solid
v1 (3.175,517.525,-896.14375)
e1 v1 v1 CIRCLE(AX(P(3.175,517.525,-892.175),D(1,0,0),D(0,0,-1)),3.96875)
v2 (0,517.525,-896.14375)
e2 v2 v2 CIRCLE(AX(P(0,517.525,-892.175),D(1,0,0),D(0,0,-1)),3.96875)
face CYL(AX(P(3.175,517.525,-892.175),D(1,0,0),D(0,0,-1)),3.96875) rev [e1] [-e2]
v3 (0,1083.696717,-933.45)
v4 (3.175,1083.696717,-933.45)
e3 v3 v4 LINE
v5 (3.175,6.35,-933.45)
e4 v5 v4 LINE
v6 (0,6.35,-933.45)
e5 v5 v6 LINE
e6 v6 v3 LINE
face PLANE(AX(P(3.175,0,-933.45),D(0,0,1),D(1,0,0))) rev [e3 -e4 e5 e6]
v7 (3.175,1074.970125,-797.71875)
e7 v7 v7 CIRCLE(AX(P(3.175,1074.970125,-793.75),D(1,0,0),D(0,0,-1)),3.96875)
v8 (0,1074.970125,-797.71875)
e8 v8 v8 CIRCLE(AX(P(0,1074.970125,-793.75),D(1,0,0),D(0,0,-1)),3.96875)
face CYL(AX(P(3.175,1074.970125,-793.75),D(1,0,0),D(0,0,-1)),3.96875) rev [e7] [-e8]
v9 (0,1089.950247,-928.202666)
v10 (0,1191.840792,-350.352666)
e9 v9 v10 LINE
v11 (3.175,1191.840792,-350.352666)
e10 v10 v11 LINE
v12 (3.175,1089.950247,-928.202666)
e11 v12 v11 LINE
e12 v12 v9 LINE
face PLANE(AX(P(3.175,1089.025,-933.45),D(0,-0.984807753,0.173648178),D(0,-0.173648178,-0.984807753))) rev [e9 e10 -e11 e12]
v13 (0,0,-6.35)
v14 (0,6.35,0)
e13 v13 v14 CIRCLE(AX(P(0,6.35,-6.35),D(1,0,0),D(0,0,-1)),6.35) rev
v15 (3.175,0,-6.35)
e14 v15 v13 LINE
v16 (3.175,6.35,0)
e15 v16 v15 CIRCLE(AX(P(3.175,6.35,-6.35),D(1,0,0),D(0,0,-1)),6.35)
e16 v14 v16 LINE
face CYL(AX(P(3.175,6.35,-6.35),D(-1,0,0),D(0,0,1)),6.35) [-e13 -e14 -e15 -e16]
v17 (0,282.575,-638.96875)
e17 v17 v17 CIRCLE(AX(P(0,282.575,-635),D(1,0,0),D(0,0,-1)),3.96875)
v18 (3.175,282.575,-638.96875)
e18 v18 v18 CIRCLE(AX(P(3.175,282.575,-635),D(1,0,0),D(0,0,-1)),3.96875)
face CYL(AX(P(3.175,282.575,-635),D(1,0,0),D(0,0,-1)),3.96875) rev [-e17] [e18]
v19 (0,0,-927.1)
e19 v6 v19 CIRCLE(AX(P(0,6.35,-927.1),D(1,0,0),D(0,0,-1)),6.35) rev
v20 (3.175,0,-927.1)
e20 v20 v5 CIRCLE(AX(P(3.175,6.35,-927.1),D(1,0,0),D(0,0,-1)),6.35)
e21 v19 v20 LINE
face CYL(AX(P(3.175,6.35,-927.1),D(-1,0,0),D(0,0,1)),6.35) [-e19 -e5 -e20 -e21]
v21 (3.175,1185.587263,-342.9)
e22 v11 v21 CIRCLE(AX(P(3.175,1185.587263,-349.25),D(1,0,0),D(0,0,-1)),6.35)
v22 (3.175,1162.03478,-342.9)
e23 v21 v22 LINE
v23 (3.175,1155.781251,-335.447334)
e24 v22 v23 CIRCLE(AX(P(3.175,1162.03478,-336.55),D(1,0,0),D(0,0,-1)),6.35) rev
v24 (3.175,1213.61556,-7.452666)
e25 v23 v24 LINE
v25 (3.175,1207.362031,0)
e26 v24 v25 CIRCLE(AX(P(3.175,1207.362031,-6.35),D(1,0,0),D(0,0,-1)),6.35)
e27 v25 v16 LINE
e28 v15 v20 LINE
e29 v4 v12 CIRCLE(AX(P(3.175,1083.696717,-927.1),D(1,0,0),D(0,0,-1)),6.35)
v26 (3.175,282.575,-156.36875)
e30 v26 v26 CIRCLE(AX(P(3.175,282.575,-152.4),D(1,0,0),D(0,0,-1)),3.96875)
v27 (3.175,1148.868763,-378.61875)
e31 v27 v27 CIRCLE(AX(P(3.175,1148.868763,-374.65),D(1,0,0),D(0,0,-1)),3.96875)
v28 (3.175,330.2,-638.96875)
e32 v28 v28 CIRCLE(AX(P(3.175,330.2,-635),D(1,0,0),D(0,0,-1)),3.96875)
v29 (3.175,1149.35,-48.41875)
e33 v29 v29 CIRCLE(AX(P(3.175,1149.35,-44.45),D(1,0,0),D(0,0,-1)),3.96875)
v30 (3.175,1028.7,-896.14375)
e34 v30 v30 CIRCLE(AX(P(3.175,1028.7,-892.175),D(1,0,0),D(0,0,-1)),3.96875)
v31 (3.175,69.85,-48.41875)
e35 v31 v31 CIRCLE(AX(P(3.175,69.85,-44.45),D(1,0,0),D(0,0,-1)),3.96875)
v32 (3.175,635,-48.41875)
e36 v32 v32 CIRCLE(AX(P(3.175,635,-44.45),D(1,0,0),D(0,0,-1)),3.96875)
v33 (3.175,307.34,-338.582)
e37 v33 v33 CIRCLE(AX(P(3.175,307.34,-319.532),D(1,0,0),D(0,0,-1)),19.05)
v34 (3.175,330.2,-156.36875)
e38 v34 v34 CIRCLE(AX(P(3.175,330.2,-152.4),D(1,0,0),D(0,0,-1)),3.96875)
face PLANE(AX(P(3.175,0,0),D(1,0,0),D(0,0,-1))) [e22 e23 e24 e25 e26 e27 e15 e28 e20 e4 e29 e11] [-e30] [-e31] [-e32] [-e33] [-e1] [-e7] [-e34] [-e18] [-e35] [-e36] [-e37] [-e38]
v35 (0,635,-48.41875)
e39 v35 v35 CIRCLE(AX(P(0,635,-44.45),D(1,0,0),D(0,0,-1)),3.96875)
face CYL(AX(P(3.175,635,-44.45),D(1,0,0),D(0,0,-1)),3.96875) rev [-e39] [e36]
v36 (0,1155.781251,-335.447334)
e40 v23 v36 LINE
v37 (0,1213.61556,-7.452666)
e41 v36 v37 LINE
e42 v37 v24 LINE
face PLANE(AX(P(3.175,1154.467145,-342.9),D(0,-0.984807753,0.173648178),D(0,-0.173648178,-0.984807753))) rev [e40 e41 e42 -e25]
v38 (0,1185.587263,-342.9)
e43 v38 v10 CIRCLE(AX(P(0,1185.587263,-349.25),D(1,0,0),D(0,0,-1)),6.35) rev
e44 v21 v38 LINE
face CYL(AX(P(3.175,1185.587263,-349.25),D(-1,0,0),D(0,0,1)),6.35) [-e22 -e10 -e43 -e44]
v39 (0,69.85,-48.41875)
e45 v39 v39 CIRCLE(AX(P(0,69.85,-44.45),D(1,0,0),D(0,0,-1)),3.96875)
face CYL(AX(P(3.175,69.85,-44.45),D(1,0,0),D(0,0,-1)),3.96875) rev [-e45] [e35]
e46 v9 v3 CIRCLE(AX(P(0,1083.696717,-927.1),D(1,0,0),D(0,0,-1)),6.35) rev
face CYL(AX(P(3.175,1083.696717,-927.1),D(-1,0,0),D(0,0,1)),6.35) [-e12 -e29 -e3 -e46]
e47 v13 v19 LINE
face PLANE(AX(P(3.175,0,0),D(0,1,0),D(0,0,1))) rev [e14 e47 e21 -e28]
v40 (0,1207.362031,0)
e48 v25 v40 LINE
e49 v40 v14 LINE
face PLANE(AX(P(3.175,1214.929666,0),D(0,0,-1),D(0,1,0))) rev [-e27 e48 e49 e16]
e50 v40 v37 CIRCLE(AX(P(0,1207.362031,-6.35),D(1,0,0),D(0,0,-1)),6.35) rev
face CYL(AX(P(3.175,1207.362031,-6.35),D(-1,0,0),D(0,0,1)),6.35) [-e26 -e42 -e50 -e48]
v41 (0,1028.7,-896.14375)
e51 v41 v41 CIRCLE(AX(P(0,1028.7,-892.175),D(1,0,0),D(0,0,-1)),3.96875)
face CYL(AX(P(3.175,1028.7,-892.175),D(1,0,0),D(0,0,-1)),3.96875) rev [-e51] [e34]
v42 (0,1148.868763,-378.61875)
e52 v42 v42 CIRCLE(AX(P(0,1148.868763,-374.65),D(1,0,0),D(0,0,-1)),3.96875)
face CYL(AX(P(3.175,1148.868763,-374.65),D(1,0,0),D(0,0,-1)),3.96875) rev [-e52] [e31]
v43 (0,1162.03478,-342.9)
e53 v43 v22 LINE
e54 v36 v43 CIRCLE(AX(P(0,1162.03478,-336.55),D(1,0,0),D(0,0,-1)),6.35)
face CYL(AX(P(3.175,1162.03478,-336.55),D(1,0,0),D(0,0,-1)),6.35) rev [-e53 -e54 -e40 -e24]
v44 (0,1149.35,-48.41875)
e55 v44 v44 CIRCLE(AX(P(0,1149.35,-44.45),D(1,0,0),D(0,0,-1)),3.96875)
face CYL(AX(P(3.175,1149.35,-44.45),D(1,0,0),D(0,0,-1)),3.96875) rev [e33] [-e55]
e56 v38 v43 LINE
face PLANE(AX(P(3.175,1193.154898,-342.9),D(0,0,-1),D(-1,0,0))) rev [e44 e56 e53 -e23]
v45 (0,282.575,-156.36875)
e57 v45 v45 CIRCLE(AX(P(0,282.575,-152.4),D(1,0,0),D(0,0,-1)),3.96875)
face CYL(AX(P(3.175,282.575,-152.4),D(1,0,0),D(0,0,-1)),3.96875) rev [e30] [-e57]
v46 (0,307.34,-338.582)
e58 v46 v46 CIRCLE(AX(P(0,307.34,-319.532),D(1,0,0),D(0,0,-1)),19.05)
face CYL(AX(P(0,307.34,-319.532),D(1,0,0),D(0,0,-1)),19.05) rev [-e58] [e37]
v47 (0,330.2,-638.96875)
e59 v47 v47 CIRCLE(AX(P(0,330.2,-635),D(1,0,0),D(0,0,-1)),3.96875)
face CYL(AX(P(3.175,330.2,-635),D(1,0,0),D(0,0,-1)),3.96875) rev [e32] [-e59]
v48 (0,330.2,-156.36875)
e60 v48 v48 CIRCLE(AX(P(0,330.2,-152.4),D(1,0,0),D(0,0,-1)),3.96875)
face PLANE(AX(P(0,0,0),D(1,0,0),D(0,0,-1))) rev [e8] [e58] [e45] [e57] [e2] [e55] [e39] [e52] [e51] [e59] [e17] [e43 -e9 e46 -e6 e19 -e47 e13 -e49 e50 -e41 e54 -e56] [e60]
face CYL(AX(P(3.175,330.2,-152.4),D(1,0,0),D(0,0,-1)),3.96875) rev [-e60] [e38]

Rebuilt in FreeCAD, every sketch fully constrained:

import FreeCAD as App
import Part
import Sketcher

V = App.Vector
Q = App.Units.Quantity


def edges_at(feature, points):
    """Names of the edges that pass closest to the given points."""
    edges = feature.Shape.Edges
    near = lambda p: min(range(len(edges)), key=lambda i: edges[i].distToShape(Part.Vertex(*p))[0])
    return sorted({f"Edge{near(p) + 1}" for p in points})


def add_polygon(sketch, points):
    """Adds a closed chain of lines whose ends are joined by coincident constraints."""
    first, n = sketch.GeometryCount, len(points)
    for a, b in zip(points, points[1:] + points[:1]):
        sketch.addGeometry(Part.LineSegment(App.Vector(*a, 0), App.Vector(*b, 0)), False)
    for i in range(n):
        sketch.addConstraint(Sketcher.Constraint("Coincident", first + i, 2, first + (i + 1) % n, 1))

doc = App.newDocument("Part")
body = doc.addObject("PartDesign::Body", "Body")

# Sketch on YZ plane
sketch1 = body.newObject("Sketcher::SketchObject", "Sketch")
sketch1.AttachmentSupport = (doc.getObject("YZ_Plane"), [""])
sketch1.MapMode = "FlatFace"
add_polygon(sketch1, [(0, 0), (0, -933.45), (1089.025, -933.45), (1193.154898, -342.9), (1154.467145, -342.9), (1214.929666, 0)])  # lines 0-5
sketch1.addConstraint([
    Sketcher.Constraint("Vertical", 0),
    Sketcher.Constraint("Horizontal", 1),
    Sketcher.Constraint("Horizontal", 3),
    Sketcher.Constraint("Horizontal", 5),
    Sketcher.Constraint("Coincident", 5, 2, -1, 1),
    Sketcher.Constraint("Parallel", 2, 4),
    Sketcher.Constraint("Angle", 2, Q("80 deg")),
    Sketcher.Constraint("DistanceY", 0, 2, 0, 1, Q("36.75 in")),
    Sketcher.Constraint("DistanceY", 2, 2, -1, 1, Q("13.5 in")),
    Sketcher.Constraint("DistanceX", 1, 1, 1, 2, Q("42.875 in")),
    Sketcher.Constraint("DistanceX", 3, 2, 3, 1, 38.687754),
])
pad1 = body.newObject("PartDesign::Pad", "Pad")
pad1.Profile = sketch1
pad1.Length = Q("0.125 in")

# Sketch on YZ plane
sketch2 = body.newObject("Sketcher::SketchObject", "Sketch001")
sketch2.AttachmentSupport = (doc.getObject("YZ_Plane"), [""])
sketch2.MapMode = "FlatFace"
sketch2.AttachmentOffset = App.Placement(V(0, 0, 0.125 * 25.4), App.Rotation())
sketch2.addGeometry(Part.Circle(V(307.34, -319.532, 0), V(0, 0, 1), 19.05), False)
sketch2.addConstraint([
    Sketcher.Constraint("Diameter", 0, Q("1.5 in")),
    Sketcher.Constraint("DistanceX", -1, 1, 0, 3, Q("12.1 in")),
    Sketcher.Constraint("DistanceY", 0, 3, -1, 1, Q("12.58 in")),
])
pocket1 = body.newObject("PartDesign::Pocket", "Pocket")
pocket1.Profile = sketch2
pocket1.Type = "ThroughAll"
doc.recompute()

fillet = body.newObject("PartDesign::Fillet", "Fillet")
fillet.Base = (pocket1, edges_at(pocket1, [
    (1.587, 1214.93, 0),
    (1.587, 1154.467, -342.9),
    (1.587, 1193.155, -342.9),
    (1.587, 1089.025, -933.45),
    (1.587, 0, -933.45),
    (1.587, 0, 0),
]))
fillet.Radius = Q("0.25 in")

# Sketch on YZ plane
sketch3 = body.newObject("Sketcher::SketchObject", "Sketch002")
sketch3.AttachmentSupport = (doc.getObject("YZ_Plane"), [""])
sketch3.MapMode = "FlatFace"
sketch3.AttachmentOffset = App.Placement(V(0, 0, 0.125 * 25.4), App.Rotation())
sketch3.addGeometry([
    Part.Circle(V(1149.35, -44.45, 0), V(0, 0, 1), 3.96875),  # 0
    Part.Circle(V(635, -44.45, 0), V(0, 0, 1), 3.96875),  # 1
    Part.Circle(V(330.2, -152.4, 0), V(0, 0, 1), 3.96875),  # 2
    Part.Circle(V(282.575, -152.4, 0), V(0, 0, 1), 3.96875),  # 3
    Part.Circle(V(330.2, -635, 0), V(0, 0, 1), 3.96875),  # 4
    Part.Circle(V(282.575, -635, 0), V(0, 0, 1), 3.96875),  # 5
    Part.Circle(V(517.525, -892.175, 0), V(0, 0, 1), 3.96875),  # 6
    Part.Circle(V(1028.7, -892.175, 0), V(0, 0, 1), 3.96875),  # 7
    Part.Circle(V(1148.868763, -374.65, 0), V(0, 0, 1), 3.96875),  # 8
    Part.Circle(V(1074.970125, -793.75, 0), V(0, 0, 1), 3.96875),  # 9
    Part.Circle(V(69.85, -44.45, 0), V(0, 0, 1), 3.96875),  # 10
], False)
sketch3.addConstraint([
    Sketcher.Constraint("Equal", 0, 1),
    Sketcher.Constraint("Equal", 1, 2),
    Sketcher.Constraint("Equal", 2, 3),
    Sketcher.Constraint("Equal", 3, 4),
    Sketcher.Constraint("Equal", 4, 5),
    Sketcher.Constraint("Equal", 5, 6),
    Sketcher.Constraint("Equal", 6, 7),
    Sketcher.Constraint("Equal", 7, 8),
    Sketcher.Constraint("Equal", 8, 9),
    Sketcher.Constraint("Equal", 9, 10),
    Sketcher.Constraint("Horizontal", 0, 3, 1, 3),
    Sketcher.Constraint("Horizontal", 2, 3, 3, 3),
    Sketcher.Constraint("Horizontal", 4, 3, 5, 3),
    Sketcher.Constraint("Horizontal", 6, 3, 7, 3),
    Sketcher.Constraint("Horizontal", 1, 3, 10, 3),
    Sketcher.Constraint("Vertical", 2, 3, 4, 3),
    Sketcher.Constraint("Vertical", 3, 3, 5, 3),
    Sketcher.Constraint("Diameter", 0, Q("0.3125 in")),
    Sketcher.Constraint("DistanceX", -1, 1, 1, 3, Q("25 in")),
    Sketcher.Constraint("DistanceX", -1, 1, 2, 3, Q("13 in")),
    Sketcher.Constraint("DistanceY", 2, 3, -1, 1, Q("6 in")),
    Sketcher.Constraint("DistanceY", 4, 3, -1, 1, Q("25 in")),
    Sketcher.Constraint("DistanceY", 8, 3, 0, 3, Q("13 in")),
    Sketcher.Constraint("DistanceX", -1, 1, 7, 3, Q("40.5 in")),
    Sketcher.Constraint("DistanceY", 9, 3, 8, 3, Q("16.5 in")),
    Sketcher.Constraint("DistanceX", -1, 1, 0, 3, Q("45.25 in")),
    Sketcher.Constraint("DistanceY", 0, 3, -1, 1, Q("1.75 in")),
    Sketcher.Constraint("DistanceX", -1, 1, 10, 3, Q("2.75 in")),
    Sketcher.Constraint("DistanceX", 5, 3, 6, 3, Q("9.25 in")),
    Sketcher.Constraint("DistanceX", -1, 1, 3, 3, Q("11.125 in")),
    Sketcher.Constraint("DistanceY", 6, 3, -1, 1, Q("35.125 in")),
    Sketcher.Constraint("DistanceX", -1, 1, 8, 3, 1148.868763),
    Sketcher.Constraint("DistanceX", -1, 1, 9, 3, 1074.970125),
])
doc.recompute()
hole = body.newObject("PartDesign::Hole", "Hole")
hole.Profile = sketch3
hole.ThreadType = "None"
hole.Diameter = Q("0.3125 in")
hole.DepthType = "ThroughAll"

doc.recompute()
